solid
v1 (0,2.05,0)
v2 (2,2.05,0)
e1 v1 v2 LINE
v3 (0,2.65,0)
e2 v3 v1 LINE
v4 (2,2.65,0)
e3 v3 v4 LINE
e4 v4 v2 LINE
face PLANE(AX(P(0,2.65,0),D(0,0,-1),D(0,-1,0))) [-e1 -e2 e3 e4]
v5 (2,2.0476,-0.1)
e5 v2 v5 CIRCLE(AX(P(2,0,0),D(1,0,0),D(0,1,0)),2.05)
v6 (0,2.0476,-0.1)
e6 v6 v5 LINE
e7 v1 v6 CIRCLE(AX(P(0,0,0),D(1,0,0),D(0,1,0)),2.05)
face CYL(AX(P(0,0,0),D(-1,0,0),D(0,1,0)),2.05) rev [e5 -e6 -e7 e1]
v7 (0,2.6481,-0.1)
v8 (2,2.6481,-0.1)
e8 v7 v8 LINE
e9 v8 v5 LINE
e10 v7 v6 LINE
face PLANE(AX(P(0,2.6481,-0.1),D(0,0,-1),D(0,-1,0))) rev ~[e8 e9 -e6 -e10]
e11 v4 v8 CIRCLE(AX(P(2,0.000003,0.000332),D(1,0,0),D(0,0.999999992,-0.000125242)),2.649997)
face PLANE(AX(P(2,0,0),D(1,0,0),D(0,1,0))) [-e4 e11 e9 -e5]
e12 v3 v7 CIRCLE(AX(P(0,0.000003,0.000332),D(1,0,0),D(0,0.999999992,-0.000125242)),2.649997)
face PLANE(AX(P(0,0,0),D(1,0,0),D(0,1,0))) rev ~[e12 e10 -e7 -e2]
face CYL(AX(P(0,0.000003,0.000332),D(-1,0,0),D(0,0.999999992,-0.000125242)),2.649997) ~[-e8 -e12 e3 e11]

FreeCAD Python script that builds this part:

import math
import FreeCAD as App
import Part
import Sketcher

V = App.Vector

doc = App.newDocument("Part")
body = doc.addObject("PartDesign::Body", "Body")

sketch1 = body.newObject("Sketcher::SketchObject", "Sketch")
sketch1.AttachmentSupport = (doc.getObject("YZ_Plane"), [""])
sketch1.MapMode = "FlatFace"
sketch1.addGeometry(Part.ArcOfCircle(Part.Circle(V(0, 0, 0), V(0, 0, 1), 2.05), math.radians(0), math.radians(357)), False)
sketch1.addGeometry(Part.LineSegment(V(2.05, 0, 0), V(2.65, 0, 0)), False)
sketch1.addGeometry(Part.ArcOfCircle(Part.Circle(V(0, 0, 0), V(0, 0, 1), 2.65), math.radians(0), math.radians(358)), False)
sketch1.addGeometry(Part.LineSegment(V(2.65, -0.1, 0), V(2.05, -0.1, 0)), False)
sketch1.addConstraint(Sketcher.Constraint("Coincident", 0, 1, 1, 1))
sketch1.addConstraint(Sketcher.Constraint("Coincident", 1, 2, 2, 1))
sketch1.addConstraint(Sketcher.Constraint("Coincident", 2, 2, 3, 1))
sketch1.addConstraint(Sketcher.Constraint("Coincident", 3, 2, 0, 2))
sketch1.addConstraint(Sketcher.Constraint("Horizontal", 1))
sketch1.addConstraint(Sketcher.Constraint("Horizontal", 3))
sketch1.addConstraint(Sketcher.Constraint("Coincident", 0, 3, -1, 1))
sketch1.addConstraint(Sketcher.Constraint("Coincident", 2, 3, -1, 1))
sketch1.addConstraint(Sketcher.Constraint("PointOnObject", 0, 1, -1))
sketch1.addConstraint(Sketcher.Constraint("Radius", 0, 2.05))
sketch1.addConstraint(Sketcher.Constraint("Radius", 2, 2.65))
sketch1.addConstraint(Sketcher.Constraint("DistanceY", 2, 2, -1, 1, 0.1))
pad1 = body.newObject("PartDesign::Pad", "Pad")
pad1.Profile = sketch1
pad1.Length = 2

doc.recompute()
